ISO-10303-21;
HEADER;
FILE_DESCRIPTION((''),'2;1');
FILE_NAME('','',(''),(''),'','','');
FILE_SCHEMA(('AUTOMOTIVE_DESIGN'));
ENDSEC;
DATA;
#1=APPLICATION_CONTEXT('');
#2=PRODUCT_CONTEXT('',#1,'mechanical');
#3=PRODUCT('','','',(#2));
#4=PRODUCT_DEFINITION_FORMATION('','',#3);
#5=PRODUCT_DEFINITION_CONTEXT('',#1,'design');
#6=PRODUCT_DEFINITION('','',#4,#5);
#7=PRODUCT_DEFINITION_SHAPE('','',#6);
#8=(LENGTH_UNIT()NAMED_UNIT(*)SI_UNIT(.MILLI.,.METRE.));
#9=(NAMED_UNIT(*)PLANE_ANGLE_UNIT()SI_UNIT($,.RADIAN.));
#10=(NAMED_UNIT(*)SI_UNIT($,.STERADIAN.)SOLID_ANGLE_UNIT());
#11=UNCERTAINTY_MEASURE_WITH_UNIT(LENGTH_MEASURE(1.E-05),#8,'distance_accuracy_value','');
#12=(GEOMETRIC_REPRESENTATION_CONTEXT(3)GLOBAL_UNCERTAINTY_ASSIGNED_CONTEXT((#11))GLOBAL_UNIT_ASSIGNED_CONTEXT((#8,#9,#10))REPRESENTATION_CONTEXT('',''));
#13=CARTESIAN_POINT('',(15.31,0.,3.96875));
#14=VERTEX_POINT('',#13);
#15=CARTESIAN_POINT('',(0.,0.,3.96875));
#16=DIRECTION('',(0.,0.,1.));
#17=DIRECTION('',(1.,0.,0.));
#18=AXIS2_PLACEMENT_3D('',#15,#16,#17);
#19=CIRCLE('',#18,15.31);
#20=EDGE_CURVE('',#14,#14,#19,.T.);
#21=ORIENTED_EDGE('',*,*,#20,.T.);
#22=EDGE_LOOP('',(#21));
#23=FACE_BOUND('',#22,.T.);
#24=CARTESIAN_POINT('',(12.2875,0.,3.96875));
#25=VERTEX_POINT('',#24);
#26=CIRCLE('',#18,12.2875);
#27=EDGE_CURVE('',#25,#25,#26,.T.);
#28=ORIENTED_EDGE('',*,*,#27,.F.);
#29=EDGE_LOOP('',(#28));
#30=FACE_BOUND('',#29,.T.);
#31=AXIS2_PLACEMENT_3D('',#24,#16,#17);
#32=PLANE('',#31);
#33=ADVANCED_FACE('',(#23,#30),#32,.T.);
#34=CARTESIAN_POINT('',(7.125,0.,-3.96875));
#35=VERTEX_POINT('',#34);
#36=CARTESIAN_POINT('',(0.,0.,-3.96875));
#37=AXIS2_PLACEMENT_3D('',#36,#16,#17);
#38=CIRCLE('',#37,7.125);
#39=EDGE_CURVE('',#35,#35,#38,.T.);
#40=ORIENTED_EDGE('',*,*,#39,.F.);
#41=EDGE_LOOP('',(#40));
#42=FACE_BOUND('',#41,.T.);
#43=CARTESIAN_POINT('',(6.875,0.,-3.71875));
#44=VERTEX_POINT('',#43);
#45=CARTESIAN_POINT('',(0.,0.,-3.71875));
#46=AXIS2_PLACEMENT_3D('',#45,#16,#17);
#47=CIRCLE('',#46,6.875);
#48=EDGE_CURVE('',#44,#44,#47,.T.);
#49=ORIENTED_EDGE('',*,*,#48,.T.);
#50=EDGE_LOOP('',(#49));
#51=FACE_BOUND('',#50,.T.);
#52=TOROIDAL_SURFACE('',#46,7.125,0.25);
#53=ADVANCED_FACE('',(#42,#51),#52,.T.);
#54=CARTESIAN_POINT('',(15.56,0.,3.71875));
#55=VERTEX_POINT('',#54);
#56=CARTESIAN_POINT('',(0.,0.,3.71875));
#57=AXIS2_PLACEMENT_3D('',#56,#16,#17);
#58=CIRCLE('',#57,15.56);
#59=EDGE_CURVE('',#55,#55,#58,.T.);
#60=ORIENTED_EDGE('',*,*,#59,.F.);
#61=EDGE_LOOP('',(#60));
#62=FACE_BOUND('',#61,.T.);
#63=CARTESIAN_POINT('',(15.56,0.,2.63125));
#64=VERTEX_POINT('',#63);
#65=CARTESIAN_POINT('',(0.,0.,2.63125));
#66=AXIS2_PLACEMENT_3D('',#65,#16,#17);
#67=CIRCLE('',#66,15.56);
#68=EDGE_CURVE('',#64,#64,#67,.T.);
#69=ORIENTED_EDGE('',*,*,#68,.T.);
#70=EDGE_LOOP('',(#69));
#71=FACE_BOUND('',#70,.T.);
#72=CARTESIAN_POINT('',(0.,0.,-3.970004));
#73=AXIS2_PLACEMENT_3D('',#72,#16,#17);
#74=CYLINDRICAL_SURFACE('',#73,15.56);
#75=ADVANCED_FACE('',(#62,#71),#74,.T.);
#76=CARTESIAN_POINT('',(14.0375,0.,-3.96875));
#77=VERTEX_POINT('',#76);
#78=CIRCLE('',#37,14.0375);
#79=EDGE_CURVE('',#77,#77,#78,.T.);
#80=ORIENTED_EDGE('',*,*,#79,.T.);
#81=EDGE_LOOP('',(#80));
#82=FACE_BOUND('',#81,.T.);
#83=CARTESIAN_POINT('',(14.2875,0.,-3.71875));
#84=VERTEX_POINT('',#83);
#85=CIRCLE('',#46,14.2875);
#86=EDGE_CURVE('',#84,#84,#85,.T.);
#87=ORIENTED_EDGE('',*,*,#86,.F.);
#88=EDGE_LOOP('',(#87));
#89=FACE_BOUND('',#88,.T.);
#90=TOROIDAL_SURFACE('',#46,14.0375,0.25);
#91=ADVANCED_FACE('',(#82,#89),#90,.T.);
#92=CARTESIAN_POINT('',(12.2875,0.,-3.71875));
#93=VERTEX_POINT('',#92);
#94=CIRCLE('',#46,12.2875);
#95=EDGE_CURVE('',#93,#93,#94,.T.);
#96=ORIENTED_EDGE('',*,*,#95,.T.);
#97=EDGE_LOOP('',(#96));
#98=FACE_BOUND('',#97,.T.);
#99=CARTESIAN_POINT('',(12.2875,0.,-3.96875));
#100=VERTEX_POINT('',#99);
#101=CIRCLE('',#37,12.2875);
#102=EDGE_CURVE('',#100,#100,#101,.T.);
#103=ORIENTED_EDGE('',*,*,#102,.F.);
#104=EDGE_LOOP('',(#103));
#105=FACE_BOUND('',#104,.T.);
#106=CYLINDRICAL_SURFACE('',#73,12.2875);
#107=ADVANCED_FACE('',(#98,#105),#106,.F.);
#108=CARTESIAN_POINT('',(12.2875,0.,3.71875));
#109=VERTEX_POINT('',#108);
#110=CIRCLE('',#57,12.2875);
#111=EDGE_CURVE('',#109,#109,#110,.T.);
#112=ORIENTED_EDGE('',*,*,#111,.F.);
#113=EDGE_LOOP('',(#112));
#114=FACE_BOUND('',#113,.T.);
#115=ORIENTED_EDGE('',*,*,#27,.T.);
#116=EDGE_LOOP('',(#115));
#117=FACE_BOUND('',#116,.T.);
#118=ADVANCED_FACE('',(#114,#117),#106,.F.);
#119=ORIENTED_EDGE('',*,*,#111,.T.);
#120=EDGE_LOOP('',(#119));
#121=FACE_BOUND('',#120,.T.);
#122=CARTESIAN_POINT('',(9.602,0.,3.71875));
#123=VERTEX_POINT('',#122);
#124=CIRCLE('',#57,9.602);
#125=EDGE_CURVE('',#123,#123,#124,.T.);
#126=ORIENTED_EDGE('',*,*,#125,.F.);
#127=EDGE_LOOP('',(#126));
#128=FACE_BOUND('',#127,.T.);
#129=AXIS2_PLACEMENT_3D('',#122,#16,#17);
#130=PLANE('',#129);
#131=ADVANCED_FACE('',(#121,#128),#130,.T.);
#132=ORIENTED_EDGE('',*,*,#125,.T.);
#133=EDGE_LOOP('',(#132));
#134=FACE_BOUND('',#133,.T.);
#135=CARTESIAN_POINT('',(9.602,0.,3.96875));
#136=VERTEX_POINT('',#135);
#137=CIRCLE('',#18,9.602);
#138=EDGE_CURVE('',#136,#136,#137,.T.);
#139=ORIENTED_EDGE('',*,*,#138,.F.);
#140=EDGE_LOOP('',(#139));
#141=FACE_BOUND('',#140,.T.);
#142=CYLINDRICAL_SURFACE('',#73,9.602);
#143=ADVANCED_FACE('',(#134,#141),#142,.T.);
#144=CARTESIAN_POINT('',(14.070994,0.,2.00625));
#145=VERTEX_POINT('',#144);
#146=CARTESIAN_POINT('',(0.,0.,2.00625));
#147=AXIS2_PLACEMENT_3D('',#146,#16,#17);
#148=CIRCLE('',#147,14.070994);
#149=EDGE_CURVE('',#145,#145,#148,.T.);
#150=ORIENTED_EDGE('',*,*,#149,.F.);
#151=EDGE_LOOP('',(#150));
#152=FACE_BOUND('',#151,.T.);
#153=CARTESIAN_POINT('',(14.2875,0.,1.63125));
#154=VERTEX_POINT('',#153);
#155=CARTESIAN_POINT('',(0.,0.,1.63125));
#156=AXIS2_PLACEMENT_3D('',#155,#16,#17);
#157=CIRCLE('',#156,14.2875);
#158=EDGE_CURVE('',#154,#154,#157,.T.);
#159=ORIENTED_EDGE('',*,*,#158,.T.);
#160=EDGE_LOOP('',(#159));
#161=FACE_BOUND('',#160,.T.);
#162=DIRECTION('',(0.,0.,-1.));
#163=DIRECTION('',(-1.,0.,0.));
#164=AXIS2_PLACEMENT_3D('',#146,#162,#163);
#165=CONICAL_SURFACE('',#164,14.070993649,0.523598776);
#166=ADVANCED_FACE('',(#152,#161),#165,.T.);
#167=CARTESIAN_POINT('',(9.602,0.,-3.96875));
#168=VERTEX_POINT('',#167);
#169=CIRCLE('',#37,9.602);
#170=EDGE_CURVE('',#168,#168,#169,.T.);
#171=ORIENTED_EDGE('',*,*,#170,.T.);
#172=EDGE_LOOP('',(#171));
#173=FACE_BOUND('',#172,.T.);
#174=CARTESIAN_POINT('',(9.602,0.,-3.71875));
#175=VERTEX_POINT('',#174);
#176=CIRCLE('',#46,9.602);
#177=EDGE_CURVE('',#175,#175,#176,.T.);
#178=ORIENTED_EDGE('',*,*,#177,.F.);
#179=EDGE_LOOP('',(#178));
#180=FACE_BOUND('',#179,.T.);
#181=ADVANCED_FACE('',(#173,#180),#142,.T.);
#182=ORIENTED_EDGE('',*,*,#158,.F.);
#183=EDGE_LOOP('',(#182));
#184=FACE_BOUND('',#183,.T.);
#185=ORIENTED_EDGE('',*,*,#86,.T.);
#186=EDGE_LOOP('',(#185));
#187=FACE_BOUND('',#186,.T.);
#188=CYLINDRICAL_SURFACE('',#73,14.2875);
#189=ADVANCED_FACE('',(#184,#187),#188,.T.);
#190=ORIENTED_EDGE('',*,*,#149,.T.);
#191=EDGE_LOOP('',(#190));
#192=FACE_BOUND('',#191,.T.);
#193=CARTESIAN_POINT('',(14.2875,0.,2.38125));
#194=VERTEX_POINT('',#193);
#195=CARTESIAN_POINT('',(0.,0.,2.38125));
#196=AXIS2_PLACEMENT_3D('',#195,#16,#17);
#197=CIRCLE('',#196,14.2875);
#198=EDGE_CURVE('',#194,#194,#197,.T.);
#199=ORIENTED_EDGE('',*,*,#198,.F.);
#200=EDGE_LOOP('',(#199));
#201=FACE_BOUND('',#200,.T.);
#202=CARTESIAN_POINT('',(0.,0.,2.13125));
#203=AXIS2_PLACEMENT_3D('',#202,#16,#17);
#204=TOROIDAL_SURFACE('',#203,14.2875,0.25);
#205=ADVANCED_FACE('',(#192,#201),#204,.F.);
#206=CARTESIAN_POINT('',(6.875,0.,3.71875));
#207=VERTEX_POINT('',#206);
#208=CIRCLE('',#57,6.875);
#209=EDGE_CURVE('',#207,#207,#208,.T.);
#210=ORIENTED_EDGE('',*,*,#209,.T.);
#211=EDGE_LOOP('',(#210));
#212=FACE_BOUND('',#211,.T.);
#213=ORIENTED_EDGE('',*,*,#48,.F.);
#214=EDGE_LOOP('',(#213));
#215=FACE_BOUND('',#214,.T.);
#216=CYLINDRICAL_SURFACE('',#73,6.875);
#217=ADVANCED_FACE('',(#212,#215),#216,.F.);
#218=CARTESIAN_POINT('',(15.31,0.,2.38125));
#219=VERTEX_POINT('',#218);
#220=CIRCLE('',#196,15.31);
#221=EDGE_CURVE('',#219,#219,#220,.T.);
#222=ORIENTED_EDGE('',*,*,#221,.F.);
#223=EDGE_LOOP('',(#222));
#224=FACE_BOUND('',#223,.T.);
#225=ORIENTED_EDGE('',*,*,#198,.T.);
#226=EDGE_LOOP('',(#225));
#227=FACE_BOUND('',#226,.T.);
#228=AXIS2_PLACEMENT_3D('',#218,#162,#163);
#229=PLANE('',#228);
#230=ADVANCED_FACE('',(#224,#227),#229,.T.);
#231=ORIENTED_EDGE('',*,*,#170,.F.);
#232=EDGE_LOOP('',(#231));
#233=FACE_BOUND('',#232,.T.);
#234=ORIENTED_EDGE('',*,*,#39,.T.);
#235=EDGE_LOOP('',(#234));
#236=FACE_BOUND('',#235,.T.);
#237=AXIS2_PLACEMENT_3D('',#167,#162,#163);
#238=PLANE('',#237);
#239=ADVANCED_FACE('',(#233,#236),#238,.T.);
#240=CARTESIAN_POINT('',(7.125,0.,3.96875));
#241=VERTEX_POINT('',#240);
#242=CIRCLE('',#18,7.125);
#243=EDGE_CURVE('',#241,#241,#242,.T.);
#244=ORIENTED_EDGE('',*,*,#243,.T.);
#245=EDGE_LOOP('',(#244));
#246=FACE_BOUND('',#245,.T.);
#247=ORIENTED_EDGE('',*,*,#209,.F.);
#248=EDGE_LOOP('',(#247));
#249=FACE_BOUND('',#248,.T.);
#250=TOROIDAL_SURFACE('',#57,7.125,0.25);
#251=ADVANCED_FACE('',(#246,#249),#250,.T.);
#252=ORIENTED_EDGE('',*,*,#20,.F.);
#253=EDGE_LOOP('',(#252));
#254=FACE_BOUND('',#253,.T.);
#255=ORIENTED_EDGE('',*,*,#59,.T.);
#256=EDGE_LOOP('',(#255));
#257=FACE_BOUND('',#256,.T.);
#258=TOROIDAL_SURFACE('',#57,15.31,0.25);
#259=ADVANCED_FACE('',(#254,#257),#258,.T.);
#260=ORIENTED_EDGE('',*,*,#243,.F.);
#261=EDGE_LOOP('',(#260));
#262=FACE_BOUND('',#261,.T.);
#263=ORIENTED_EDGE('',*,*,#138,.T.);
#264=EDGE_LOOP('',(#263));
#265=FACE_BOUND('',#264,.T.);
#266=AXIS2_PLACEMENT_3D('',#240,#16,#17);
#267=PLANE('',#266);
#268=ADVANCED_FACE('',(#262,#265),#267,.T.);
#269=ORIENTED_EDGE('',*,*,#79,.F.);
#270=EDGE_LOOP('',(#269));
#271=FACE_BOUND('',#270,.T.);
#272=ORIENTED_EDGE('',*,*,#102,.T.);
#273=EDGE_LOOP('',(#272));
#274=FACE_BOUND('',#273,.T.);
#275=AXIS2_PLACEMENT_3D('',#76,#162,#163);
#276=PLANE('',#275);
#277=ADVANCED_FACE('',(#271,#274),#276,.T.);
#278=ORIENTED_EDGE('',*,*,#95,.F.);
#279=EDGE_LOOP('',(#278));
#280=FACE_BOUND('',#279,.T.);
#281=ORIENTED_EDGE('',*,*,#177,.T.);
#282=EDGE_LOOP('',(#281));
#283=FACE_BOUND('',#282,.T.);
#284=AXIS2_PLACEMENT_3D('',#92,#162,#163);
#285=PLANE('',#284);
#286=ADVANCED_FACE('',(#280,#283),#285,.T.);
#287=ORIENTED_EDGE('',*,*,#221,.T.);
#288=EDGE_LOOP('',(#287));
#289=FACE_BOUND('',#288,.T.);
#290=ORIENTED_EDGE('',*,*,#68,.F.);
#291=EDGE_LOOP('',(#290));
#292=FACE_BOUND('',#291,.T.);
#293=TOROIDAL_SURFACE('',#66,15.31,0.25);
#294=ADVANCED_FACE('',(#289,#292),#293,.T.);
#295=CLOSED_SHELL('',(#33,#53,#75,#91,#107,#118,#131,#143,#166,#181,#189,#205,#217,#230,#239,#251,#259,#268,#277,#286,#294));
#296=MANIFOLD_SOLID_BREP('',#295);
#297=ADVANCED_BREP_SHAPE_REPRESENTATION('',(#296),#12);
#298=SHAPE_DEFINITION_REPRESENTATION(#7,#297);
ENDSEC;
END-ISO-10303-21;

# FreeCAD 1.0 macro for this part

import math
import FreeCAD as App
import Part
import Sketcher
Q = App.Units.Quantity

doc = App.newDocument("Part")
body = doc.addObject("PartDesign::Body", "Body")

# Sketch on XZ plane
sketch1 = doc.addObject("Sketcher::SketchObject", "Sketch")
body.addObject(sketch1)
sketch1.AttachmentSupport = (doc.XZ_Plane, [""])
sketch1.MapMode = "FlatFace"
sketch1.addGeometry([
    Part.LineSegment(App.Vector(14.04, -3.97, 0), App.Vector(12.29, -3.97, 0)),  # 0
    Part.LineSegment(App.Vector(12.29, -3.97, 0), App.Vector(12.29, -3.72, 0)),  # 1
    Part.LineSegment(App.Vector(12.29, -3.72, 0), App.Vector(9.6, -3.72, 0)),  # 2
    Part.LineSegment(App.Vector(9.6, -3.72, 0), App.Vector(9.6, -3.97, 0)),  # 3
    Part.LineSegment(App.Vector(9.6, -3.97, 0), App.Vector(7.12, -3.97, 0)),  # 4
    Part.ArcOfCircle(Part.Circle(App.Vector(7.13, -3.72, 0), App.Vector(0, 0, 1), 0.25), math.radians(-180), math.radians(-90)),  # 5
    Part.LineSegment(App.Vector(6.88, -3.72, 0), App.Vector(6.88, 3.72, 0)),  # 6
    Part.ArcOfCircle(Part.Circle(App.Vector(7.13, 3.72, 0), App.Vector(0, 0, 1), 0.25), math.radians(90), math.radians(180)),  # 7
    Part.LineSegment(App.Vector(7.12, 3.97, 0), App.Vector(9.6, 3.97, 0)),  # 8
    Part.LineSegment(App.Vector(9.6, 3.97, 0), App.Vector(9.6, 3.72, 0)),  # 9
    Part.LineSegment(App.Vector(9.6, 3.72, 0), App.Vector(12.29, 3.72, 0)),  # 10
    Part.LineSegment(App.Vector(12.29, 3.72, 0), App.Vector(12.29, 3.97, 0)),  # 11
    Part.LineSegment(App.Vector(12.29, 3.97, 0), App.Vector(15.31, 3.97, 0)),  # 12
    Part.ArcOfCircle(Part.Circle(App.Vector(15.31, 3.72, 0), App.Vector(0, 0, 1), 0.25), math.radians(0), math.radians(90)),  # 13
    Part.LineSegment(App.Vector(15.56, 3.72, 0), App.Vector(15.56, 2.63, 0)),  # 14
    Part.ArcOfCircle(Part.Circle(App.Vector(15.31, 2.63, 0), App.Vector(0, 0, 1), 0.25), math.radians(-90), math.radians(0)),  # 15
    Part.LineSegment(App.Vector(15.31, 2.38, 0), App.Vector(14.29, 2.38, 0)),  # 16
    Part.ArcOfCircle(Part.Circle(App.Vector(14.29, 2.13, 0), App.Vector(0, 0, 1), 0.25), math.radians(90), math.radians(210)),  # 17
    Part.LineSegment(App.Vector(14.07, 2.01, 0), App.Vector(14.29, 1.63, 0)),  # 18
    Part.LineSegment(App.Vector(14.29, 1.63, 0), App.Vector(14.29, -3.72, 0)),  # 19
    Part.ArcOfCircle(Part.Circle(App.Vector(14.04, -3.72, 0), App.Vector(0, 0, 1), 0.25), math.radians(-90), math.radians(0)),  # 20
], False)
sketch1.addConstraint([
    Sketcher.Constraint("Coincident", 0, 2, 1, 1),
    Sketcher.Constraint("Coincident", 1, 2, 2, 1),
    Sketcher.Constraint("Coincident", 2, 2, 3, 1),
    Sketcher.Constraint("Coincident", 3, 2, 4, 1),
    Sketcher.Constraint("Tangent", 4, 2, 5, 2),
    Sketcher.Constraint("Tangent", 5, 1, 6, 1),
    Sketcher.Constraint("Tangent", 6, 2, 7, 2),
    Sketcher.Constraint("Tangent", 7, 1, 8, 1),
    Sketcher.Constraint("Coincident", 8, 2, 9, 1),
    Sketcher.Constraint("Coincident", 9, 2, 10, 1),
    Sketcher.Constraint("Coincident", 10, 2, 11, 1),
    Sketcher.Constraint("Coincident", 11, 2, 12, 1),
    Sketcher.Constraint("Tangent", 12, 2, 13, 2),
    Sketcher.Constraint("Tangent", 13, 1, 14, 1),
    Sketcher.Constraint("Tangent", 14, 2, 15, 2),
    Sketcher.Constraint("Tangent", 15, 1, 16, 1),
    Sketcher.Constraint("Tangent", 16, 2, 17, 1),
    Sketcher.Constraint("Tangent", 17, 2, 18, 1),
    Sketcher.Constraint("Coincident", 18, 2, 19, 1),
    Sketcher.Constraint("Tangent", 19, 2, 20, 2),
    Sketcher.Constraint("Tangent", 20, 1, 0, 1),
    Sketcher.Constraint("Horizontal", 0),
    Sketcher.Constraint("Vertical", 1),
    Sketcher.Constraint("Horizontal", 2),
    Sketcher.Constraint("Vertical", 3),
    Sketcher.Constraint("Horizontal", 4),
    Sketcher.Constraint("Vertical", 6),
    Sketcher.Constraint("Horizontal", 8),
    Sketcher.Constraint("Vertical", 9),
    Sketcher.Constraint("Horizontal", 10),
    Sketcher.Constraint("Vertical", 11),
    Sketcher.Constraint("Horizontal", 12),
    Sketcher.Constraint("Vertical", 14),
    Sketcher.Constraint("Horizontal", 16),
    Sketcher.Constraint("Vertical", 19),
    Sketcher.Constraint("Equal", 5, 7),
    Sketcher.Constraint("Equal", 7, 13),
    Sketcher.Constraint("Equal", 13, 15),
    Sketcher.Constraint("Equal", 15, 17),
    Sketcher.Constraint("Equal", 17, 20),
    Sketcher.Constraint("Symmetric", 3, 2, 8, 2, -1),
    Sketcher.Constraint("Symmetric", 1, 2, 10, 2, -1),
    Sketcher.Constraint("Horizontal", 7, 3, 13, 3),
    Sketcher.Constraint("Horizontal", 5, 3, 20, 3),
    Sketcher.Constraint("Horizontal", 20, 3, 1, 2),
    Sketcher.Constraint("Vertical", 16, 2, 18, 2),
    Sketcher.Constraint("Angle", 18, Q("-60 deg")),
    Sketcher.Constraint("Radius", 5, Q("0.25 mm")),
    Sketcher.Constraint("DistanceX", 0, 2, 17, 3, Q("2 mm")),
    Sketcher.Constraint("DistanceY", 19, 2, 19, 1, Q("5.35 mm")),
    Sketcher.Constraint("DistanceX", 4, 2, 4, 1, Q("2.477 mm")),
    Sketcher.Constraint("DistanceX", -1, 1, 13, 3, Q("15.31 mm")),
    Sketcher.Constraint("DistanceX", 2, 2, 2, 1, Q("2.6855 mm")),
    Sketcher.Constraint("DistanceX", 12, 1, 12, 2, Q("3.0225 mm")),
    Sketcher.Constraint("DistanceY", 6, 1, 6, 2, Q("7.4375 mm")),
])
revolution = doc.addObject("PartDesign::Revolution", "Revolution")
body.addObject(revolution)
revolution.Profile = sketch1
revolution.ReferenceAxis = (sketch1, ["V_Axis"])
revolution.Angle = 360

doc.recompute()
